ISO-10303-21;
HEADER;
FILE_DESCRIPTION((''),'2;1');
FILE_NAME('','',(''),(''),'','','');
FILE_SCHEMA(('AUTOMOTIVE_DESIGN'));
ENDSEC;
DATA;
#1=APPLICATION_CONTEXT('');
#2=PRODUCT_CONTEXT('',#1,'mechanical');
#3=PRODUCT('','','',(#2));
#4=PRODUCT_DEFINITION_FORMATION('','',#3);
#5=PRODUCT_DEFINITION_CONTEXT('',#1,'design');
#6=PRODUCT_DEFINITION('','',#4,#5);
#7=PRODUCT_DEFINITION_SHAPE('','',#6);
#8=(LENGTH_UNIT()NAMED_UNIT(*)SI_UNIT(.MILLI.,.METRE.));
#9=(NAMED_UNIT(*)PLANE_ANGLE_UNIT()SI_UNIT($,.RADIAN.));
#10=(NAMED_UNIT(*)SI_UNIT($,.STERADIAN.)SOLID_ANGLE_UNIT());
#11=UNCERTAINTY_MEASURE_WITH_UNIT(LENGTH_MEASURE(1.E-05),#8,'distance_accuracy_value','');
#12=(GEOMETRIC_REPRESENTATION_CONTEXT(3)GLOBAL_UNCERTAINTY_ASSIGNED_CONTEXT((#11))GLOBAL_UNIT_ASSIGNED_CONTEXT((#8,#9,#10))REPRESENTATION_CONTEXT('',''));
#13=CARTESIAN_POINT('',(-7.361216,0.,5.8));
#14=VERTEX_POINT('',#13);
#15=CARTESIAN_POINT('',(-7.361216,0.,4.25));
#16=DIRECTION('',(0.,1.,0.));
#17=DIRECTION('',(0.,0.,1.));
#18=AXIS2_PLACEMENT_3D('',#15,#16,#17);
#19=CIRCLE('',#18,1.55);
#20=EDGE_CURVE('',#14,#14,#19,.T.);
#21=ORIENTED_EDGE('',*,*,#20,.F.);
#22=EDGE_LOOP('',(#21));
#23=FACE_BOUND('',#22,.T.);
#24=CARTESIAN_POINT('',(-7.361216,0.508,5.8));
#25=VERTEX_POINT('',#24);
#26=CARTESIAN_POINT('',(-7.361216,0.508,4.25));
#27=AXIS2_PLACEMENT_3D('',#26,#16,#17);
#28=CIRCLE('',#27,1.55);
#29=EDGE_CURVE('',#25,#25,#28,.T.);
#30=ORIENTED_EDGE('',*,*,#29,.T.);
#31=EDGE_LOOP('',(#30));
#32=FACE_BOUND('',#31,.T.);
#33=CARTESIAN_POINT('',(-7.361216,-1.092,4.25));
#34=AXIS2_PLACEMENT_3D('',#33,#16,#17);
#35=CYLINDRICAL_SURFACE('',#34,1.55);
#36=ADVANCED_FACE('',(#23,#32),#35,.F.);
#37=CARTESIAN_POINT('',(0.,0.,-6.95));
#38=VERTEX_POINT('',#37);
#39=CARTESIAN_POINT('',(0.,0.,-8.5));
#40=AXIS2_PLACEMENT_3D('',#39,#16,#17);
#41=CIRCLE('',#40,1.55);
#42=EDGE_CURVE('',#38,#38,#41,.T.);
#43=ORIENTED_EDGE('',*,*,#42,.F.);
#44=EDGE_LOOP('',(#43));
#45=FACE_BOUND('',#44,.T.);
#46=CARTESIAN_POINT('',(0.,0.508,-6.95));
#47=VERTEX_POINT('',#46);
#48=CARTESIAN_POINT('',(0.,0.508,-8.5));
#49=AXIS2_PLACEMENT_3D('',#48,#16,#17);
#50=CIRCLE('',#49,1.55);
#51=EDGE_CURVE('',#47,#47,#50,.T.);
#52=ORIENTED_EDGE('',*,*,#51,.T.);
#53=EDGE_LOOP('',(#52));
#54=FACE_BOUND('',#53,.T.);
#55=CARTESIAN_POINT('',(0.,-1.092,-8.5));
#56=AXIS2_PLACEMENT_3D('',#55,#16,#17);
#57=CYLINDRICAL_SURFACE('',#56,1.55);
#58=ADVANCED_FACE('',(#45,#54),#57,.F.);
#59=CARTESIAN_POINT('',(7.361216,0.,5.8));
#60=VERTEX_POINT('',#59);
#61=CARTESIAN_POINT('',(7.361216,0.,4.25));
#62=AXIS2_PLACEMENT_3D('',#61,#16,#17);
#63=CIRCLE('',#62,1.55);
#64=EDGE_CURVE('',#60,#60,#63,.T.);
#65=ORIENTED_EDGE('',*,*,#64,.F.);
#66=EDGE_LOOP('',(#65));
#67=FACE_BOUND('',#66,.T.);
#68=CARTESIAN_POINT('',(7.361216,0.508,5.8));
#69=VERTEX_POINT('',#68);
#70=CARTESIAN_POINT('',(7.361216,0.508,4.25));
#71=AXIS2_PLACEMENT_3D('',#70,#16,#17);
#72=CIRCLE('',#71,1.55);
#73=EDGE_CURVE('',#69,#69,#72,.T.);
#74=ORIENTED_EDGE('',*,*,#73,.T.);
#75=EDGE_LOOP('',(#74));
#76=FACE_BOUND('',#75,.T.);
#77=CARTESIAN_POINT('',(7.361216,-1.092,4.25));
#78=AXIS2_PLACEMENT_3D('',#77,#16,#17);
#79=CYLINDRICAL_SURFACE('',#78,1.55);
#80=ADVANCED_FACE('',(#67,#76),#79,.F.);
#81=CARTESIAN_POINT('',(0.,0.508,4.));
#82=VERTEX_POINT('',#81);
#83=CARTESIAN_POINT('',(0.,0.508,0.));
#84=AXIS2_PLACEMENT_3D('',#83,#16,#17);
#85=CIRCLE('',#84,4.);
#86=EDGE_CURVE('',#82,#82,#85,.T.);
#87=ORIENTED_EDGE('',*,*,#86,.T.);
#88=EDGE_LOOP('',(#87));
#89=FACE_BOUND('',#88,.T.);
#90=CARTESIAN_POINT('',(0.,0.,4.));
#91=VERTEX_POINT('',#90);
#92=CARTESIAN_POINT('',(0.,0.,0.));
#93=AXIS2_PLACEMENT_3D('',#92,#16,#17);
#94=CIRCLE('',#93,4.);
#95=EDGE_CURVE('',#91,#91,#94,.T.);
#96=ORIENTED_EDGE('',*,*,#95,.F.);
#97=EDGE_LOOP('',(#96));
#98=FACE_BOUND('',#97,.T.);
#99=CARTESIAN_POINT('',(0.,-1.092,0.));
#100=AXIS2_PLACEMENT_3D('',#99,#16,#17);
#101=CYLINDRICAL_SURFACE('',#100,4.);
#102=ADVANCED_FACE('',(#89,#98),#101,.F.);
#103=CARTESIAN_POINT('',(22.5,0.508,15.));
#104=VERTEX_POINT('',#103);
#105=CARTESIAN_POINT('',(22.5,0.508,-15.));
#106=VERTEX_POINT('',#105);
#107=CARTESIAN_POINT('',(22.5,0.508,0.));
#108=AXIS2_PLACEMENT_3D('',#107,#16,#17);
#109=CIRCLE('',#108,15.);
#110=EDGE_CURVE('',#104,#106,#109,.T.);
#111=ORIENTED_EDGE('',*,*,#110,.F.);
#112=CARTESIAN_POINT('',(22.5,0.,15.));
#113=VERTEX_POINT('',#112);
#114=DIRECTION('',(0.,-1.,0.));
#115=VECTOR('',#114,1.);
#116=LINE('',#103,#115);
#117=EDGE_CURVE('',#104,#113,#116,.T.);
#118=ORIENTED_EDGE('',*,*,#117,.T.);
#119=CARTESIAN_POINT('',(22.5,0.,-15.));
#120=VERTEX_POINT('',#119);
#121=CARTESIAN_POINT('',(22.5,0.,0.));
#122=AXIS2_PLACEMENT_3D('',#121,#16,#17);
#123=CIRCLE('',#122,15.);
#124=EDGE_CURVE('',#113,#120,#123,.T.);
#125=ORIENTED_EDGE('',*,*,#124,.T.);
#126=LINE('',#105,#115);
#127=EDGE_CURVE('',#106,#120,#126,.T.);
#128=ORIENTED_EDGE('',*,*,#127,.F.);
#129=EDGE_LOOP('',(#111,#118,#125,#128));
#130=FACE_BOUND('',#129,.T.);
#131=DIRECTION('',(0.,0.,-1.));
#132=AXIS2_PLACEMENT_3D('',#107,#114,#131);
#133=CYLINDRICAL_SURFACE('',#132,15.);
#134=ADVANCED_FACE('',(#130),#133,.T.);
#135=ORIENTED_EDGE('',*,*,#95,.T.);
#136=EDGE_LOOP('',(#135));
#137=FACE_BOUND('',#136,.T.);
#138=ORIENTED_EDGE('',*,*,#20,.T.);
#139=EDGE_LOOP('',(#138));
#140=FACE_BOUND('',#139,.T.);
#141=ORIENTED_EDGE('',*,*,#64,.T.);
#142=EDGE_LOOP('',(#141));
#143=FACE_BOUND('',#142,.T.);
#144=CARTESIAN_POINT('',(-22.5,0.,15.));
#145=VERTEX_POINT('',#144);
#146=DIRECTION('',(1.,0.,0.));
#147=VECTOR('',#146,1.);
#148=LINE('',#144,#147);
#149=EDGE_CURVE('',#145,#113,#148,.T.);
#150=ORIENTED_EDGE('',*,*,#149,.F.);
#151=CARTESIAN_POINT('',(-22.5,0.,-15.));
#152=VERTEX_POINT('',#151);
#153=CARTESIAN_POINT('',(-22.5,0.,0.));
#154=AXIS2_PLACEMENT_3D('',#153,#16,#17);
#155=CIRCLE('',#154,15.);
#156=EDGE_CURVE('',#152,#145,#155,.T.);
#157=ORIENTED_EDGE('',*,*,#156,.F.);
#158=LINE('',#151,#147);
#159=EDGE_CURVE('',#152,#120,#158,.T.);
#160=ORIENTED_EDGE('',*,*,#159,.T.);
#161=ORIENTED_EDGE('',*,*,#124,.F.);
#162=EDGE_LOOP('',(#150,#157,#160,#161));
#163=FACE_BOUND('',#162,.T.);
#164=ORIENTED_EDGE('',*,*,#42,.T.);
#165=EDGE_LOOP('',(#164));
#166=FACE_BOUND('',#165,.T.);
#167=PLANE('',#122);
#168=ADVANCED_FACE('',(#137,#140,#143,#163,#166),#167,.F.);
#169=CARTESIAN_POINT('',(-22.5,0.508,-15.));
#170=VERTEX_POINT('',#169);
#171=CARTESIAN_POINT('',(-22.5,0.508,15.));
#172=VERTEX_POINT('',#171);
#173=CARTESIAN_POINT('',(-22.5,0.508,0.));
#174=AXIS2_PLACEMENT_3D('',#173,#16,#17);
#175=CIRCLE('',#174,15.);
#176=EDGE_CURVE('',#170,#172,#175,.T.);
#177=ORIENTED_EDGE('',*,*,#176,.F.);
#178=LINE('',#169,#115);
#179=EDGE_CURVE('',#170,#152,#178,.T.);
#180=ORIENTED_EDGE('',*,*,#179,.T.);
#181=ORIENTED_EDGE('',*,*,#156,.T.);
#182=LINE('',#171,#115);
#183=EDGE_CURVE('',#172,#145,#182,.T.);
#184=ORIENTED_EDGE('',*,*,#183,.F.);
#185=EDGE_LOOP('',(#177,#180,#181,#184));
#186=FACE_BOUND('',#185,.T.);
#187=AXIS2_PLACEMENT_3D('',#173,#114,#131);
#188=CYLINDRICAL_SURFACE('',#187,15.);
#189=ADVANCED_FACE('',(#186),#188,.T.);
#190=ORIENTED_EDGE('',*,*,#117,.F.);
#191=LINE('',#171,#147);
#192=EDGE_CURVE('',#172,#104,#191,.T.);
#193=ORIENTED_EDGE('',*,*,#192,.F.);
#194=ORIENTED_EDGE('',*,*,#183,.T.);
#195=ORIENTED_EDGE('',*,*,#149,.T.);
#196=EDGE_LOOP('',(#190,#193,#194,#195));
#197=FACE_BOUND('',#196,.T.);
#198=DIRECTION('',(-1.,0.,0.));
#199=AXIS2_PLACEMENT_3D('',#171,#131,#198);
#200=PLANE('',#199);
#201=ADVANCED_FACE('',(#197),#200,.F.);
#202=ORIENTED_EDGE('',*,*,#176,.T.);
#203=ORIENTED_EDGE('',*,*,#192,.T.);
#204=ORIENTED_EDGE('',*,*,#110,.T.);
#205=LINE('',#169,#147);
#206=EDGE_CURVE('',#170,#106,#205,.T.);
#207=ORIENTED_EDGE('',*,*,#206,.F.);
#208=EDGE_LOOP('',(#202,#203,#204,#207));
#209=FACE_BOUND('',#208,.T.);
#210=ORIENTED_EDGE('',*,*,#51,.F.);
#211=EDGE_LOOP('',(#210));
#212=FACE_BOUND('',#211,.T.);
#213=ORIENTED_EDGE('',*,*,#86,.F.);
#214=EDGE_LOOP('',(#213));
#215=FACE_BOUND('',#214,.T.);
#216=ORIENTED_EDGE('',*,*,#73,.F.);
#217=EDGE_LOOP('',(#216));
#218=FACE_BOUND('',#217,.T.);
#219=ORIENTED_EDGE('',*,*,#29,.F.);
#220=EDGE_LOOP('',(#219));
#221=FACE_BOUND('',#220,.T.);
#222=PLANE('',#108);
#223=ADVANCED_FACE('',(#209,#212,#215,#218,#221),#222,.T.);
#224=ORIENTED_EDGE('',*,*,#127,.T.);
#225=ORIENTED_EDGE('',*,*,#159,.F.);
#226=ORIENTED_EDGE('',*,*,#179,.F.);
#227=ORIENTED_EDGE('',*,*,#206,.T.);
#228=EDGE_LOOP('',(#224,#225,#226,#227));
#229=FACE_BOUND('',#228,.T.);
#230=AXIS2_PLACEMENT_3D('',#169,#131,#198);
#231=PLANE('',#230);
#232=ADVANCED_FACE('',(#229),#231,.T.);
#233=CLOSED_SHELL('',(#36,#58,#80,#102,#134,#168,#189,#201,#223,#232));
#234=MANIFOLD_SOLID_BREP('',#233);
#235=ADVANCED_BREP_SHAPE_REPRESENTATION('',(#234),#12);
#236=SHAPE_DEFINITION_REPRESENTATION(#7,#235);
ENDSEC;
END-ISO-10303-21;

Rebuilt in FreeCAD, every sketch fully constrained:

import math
import FreeCAD as App
import Part
import Sketcher
from FreeCAD import Vector

doc = App.newDocument("Part")
body = doc.addObject("PartDesign::Body", "Body")

# Sketch on XZ plane
sketch1 = doc.addObject("Sketcher::SketchObject", "Sketch")
body.addObject(sketch1)
sketch1.AttachmentSupport = (doc.XZ_Plane, [""])
sketch1.MapMode = "FlatFace"
sketch1.addGeometry([
    Part.LineSegment(Vector(22, -15, 0), Vector(-22, -15, 0)),
    Part.ArcOfCircle(Part.Circle(Vector(-22, 0, 0), Vector(0, 0, 1), 15), math.radians(90), math.radians(270)),
    Part.LineSegment(Vector(-22, 15, 0), Vector(22, 15, 0)),
    Part.ArcOfCircle(Part.Circle(Vector(22, 0, 0), Vector(0, 0, 1), 15), math.radians(-90), math.radians(90)),
], False)
sketch1.addConstraint([
    Sketcher.Constraint("Tangent", 0, 2, 1, 2),
    Sketcher.Constraint("Tangent", 1, 1, 2, 1),
    Sketcher.Constraint("Tangent", 2, 2, 3, 2),
    Sketcher.Constraint("Tangent", 3, 1, 0, 1),
    Sketcher.Constraint("Horizontal", 0),
    Sketcher.Constraint("Horizontal", 2),
    Sketcher.Constraint("Symmetric", 1, 3, 3, 3, -1, 1),
    Sketcher.Constraint("Radius", 1, 15.0),
    Sketcher.Constraint("DistanceX", 0, 2, 0, 1, 45.0),
])
pad1 = doc.addObject("PartDesign::Pad", "Pad")
body.addObject(pad1)
pad1.Profile = sketch1
pad1.Length = 0.508
pad1.Reversed = True

# Sketch on XZ plane
sketch2 = doc.addObject("Sketcher::SketchObject", "Sketch001")
body.addObject(sketch2)
sketch2.AttachmentSupport = (doc.XZ_Plane, [""])
sketch2.MapMode = "FlatFace"
sketch2.AttachmentOffset = App.Placement(Vector(0, 0, -0.508), App.Rotation())
sketch2.addGeometry([
    Part.Circle(Vector(0, -8.5, 0), Vector(0, 0, 1), 1.6),
    Part.Circle(Vector(7.4, 4.2, 0), Vector(0, 0, 1), 1.6),
    Part.Circle(Vector(-7.4, 4.2, 0), Vector(0, 0, 1), 1.6),
    Part.Circle(Vector(0, 0, 0), Vector(0, 0, 1), 4),
], False)
sketch2.addConstraint([
    Sketcher.Constraint("Coincident", 3, 3, -1, 1),
    Sketcher.Constraint("Equal", 0, 1),
    Sketcher.Constraint("Equal", 1, 2),
    Sketcher.Constraint("Symmetric", 1, 3, 2, 3, -2),
    Sketcher.Constraint("PointOnObject", 0, 3, -2),
    Sketcher.Constraint("Diameter", 3, 8.0),
    Sketcher.Constraint("Diameter", 0, 3.1),
    Sketcher.Constraint("DistanceY", 0, 3, -1, 1, 8.5),
    Sketcher.Constraint("DistanceY", -1, 1, 1, 3, 4.25),
    Sketcher.Constraint("DistanceX", 2, 3, 1, 3, 14.722432),
])
pocket1 = doc.addObject("PartDesign::Pocket", "Pocket")
body.addObject(pocket1)
pocket1.Profile = sketch2
pocket1.Length = 1.6
pocket1.Reversed = True

doc.recompute()
